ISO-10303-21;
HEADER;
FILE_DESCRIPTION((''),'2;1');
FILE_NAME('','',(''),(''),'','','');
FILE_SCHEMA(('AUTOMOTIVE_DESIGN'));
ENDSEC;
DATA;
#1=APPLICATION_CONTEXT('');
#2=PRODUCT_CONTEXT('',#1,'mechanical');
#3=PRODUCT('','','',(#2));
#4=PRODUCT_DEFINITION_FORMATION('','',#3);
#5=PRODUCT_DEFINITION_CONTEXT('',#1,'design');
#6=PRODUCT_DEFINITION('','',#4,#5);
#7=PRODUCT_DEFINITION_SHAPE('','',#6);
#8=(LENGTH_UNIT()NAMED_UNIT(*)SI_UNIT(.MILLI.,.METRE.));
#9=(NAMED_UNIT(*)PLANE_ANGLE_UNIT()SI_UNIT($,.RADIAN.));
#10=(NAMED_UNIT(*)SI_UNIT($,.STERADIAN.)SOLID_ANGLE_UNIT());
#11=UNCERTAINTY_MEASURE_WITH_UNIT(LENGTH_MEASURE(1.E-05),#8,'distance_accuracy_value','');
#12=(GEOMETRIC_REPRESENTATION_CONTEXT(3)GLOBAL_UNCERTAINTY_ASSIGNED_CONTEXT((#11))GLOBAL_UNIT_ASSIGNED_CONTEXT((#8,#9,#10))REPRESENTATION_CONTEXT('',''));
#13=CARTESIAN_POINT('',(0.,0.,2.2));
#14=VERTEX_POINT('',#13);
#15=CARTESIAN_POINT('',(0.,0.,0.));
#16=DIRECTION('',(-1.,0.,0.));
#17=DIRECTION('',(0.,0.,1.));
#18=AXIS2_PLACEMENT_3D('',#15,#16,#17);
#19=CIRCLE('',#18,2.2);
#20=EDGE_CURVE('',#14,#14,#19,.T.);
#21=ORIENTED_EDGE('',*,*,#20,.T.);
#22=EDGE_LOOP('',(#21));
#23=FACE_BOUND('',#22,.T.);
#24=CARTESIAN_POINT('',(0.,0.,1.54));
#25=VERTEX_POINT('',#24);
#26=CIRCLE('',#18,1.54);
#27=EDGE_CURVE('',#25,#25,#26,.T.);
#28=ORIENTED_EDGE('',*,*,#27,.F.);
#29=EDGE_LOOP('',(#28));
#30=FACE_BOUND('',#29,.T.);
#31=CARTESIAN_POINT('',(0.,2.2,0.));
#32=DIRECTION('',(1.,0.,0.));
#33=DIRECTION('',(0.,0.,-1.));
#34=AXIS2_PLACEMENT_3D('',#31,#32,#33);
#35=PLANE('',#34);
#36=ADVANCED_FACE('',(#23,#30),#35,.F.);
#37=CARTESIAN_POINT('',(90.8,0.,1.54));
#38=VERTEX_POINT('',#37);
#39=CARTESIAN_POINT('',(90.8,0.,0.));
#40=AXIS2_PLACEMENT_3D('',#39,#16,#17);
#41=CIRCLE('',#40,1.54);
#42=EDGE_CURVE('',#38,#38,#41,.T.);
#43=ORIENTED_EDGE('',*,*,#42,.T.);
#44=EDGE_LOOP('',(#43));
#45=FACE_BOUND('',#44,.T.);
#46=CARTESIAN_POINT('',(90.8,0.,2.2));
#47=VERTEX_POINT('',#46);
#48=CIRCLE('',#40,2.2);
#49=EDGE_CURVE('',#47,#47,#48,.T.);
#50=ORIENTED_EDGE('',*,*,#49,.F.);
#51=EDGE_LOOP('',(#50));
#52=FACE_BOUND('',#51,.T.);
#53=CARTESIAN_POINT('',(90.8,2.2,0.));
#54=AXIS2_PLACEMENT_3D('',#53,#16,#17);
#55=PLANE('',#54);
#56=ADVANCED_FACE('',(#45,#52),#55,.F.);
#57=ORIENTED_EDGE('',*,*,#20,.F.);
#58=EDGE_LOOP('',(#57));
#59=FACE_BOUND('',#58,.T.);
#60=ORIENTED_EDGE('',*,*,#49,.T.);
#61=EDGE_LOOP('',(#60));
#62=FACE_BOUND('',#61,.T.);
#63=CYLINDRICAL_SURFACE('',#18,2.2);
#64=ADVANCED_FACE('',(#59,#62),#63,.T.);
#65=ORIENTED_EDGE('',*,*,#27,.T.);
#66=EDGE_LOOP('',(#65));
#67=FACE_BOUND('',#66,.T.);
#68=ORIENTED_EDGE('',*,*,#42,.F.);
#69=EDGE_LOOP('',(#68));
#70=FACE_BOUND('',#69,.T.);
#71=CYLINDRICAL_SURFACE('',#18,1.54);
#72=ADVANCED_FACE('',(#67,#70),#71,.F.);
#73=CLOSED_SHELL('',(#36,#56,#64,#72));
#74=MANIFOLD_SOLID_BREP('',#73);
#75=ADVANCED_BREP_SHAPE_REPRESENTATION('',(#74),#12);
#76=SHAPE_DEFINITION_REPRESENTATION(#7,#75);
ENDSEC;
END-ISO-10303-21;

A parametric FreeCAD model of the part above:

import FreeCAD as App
import Part
import Sketcher
from FreeCAD import Vector
Q = App.Units.Quantity


def add_polygon(sketch, points):
    """Adds a closed chain of lines whose ends are joined by coincident constraints."""
    first, n = sketch.GeometryCount, len(points)
    for a, b in zip(points, points[1:] + points[:1]):
        sketch.addGeometry(Part.LineSegment(App.Vector(*a, 0), App.Vector(*b, 0)), False)
    for i in range(n):
        sketch.addConstraint(Sketcher.Constraint("Coincident", first + i, 2, first + (i + 1) % n, 1))

doc = App.newDocument("Part")
body = doc.addObject("PartDesign::Body", "Body")

# Sketch on XY plane
sketch1 = body.newObject("Sketcher::SketchObject", "Sketch")
sketch1.AttachmentSupport = (doc.getObject("XY_Plane"), [""])
sketch1.MapMode = "FlatFace"
add_polygon(sketch1, [(0, 2.2), (0, 1.5), (90.8, 1.5), (90.8, 2.2)])  # lines 0-3
sketch1.addConstraint([
    Sketcher.Constraint("Vertical", 0),
    Sketcher.Constraint("Horizontal", 1),
    Sketcher.Constraint("Vertical", 2),
    Sketcher.Constraint("Horizontal", 3),
    Sketcher.Constraint("PointOnObject", 0, 2, -2),
    Sketcher.Constraint("DistanceX", 1, 1, 1, 2, Q("90.8 mm")),
    Sketcher.Constraint("DistanceY", 0, 2, 0, 1, Q("0.66 mm")),
    Sketcher.Constraint("DistanceY", -1, 1, 2, 2, Q("2.2 mm")),
])
revolution = body.newObject("PartDesign::Revolution", "Revolution")
revolution.Profile = sketch1
revolution.ReferenceAxis = (sketch1, ["H_Axis"])
revolution.Angle = 360

doc.recompute()
